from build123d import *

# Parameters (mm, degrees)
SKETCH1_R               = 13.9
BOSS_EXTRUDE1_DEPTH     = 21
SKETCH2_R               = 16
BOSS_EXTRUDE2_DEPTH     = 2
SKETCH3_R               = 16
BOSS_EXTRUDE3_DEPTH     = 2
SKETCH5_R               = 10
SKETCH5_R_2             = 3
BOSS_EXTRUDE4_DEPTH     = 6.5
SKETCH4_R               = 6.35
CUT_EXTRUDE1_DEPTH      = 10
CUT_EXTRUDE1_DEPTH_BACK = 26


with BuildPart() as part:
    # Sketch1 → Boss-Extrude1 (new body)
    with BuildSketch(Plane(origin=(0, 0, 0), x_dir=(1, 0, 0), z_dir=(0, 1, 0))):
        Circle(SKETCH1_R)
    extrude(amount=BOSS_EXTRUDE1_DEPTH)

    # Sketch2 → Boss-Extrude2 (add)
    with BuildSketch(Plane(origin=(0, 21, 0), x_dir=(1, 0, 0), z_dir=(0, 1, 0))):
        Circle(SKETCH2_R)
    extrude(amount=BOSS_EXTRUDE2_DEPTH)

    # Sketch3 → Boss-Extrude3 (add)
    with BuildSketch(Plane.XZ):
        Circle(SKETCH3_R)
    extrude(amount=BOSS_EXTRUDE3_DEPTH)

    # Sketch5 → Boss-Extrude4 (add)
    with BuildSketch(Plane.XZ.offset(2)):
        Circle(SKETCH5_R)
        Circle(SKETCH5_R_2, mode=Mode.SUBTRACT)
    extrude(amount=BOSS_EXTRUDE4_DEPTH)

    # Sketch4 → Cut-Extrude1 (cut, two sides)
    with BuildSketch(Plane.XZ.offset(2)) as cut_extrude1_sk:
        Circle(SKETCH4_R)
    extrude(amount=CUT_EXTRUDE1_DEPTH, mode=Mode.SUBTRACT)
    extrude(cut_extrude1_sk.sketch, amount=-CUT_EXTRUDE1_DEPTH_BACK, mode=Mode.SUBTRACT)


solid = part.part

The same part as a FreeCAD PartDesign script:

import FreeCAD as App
import Part
import Sketcher
from FreeCAD import Vector

doc = App.newDocument("Part")
body = doc.addObject("PartDesign::Body", "Body")

sketch1 = body.newObject("Sketcher::SketchObject", "Sketch")
sketch1.AttachmentSupport = (doc.getObject("XZ_Plane"), [""])
sketch1.MapMode = "FlatFace"
sketch1.addGeometry(Part.Circle(Vector(0, 0, 0), Vector(0, 0, 1), 13.9), False)
sketch1.addConstraint([
    Sketcher.Constraint("Coincident", 0, 3, -1, 1),
    Sketcher.Constraint("Diameter", 0, 27.8),
])
pad1 = body.newObject("PartDesign::Pad", "Pad")
pad1.Profile = sketch1
pad1.Length = 21
pad1.Reversed = True

sketch2 = body.newObject("Sketcher::SketchObject", "Sketch001")
sketch2.AttachmentSupport = (doc.getObject("XZ_Plane"), [""])
sketch2.MapMode = "FlatFace"
sketch2.AttachmentOffset = App.Placement(Vector(0, 0, -21), App.Rotation())
sketch2.addGeometry(Part.Circle(Vector(0, 0, 0), Vector(0, 0, 1), 16), False)
sketch2.addConstraint([
    Sketcher.Constraint("Coincident", 0, 3, -1, 1),
    Sketcher.Constraint("Diameter", 0, 32.0),
])
pad2 = body.newObject("PartDesign::Pad", "Pad001")
pad2.Profile = sketch2
pad2.Length = 2
pad2.Reversed = True

sketch3 = body.newObject("Sketcher::SketchObject", "Sketch002")
sketch3.AttachmentSupport = (doc.getObject("XZ_Plane"), [""])
sketch3.MapMode = "FlatFace"
sketch3.addGeometry(Part.Circle(Vector(0, 0, 0), Vector(0, 0, 1), 16), False)
sketch3.addConstraint([
    Sketcher.Constraint("Coincident", 0, 3, -1, 1),
    Sketcher.Constraint("Diameter", 0, 32.0),
])
pad3 = body.newObject("PartDesign::Pad", "Pad002")
pad3.Profile = sketch3
pad3.Length = 2

sketch4 = body.newObject("Sketcher::SketchObject", "Sketch003")
sketch4.AttachmentSupport = (doc.getObject("XZ_Plane"), [""])
sketch4.MapMode = "FlatFace"
sketch4.AttachmentOffset = App.Placement(Vector(0, 0, 2), App.Rotation())
sketch4.addGeometry([
    Part.Circle(Vector(0, 0, 0), Vector(0, 0, 1), 10),
    Part.Circle(Vector(0, 0, 0), Vector(0, 0, 1), 3),
], False)
sketch4.addConstraint([
    Sketcher.Constraint("Coincident", 0, 3, -1, 1),
    Sketcher.Constraint("Coincident", 1, 3, -1, 1),
    Sketcher.Constraint("Diameter", 0, 20.0),
    Sketcher.Constraint("Diameter", 1, 6.0),
])
pad4 = body.newObject("PartDesign::Pad", "Pad003")
pad4.Profile = sketch4
pad4.Length = 6.5

sketch5 = body.newObject("Sketcher::SketchObject", "Sketch004")
sketch5.AttachmentSupport = (doc.getObject("XZ_Plane"), [""])
sketch5.MapMode = "FlatFace"
sketch5.AttachmentOffset = App.Placement(Vector(0, 0, 2), App.Rotation())
sketch5.addGeometry(Part.Circle(Vector(0, 0, 0), Vector(0, 0, 1), 6.35), False)
sketch5.addConstraint([
    Sketcher.Constraint("Coincident", 0, 3, -1, 1),
    Sketcher.Constraint("Diameter", 0, 12.7),
])
pocket1 = body.newObject("PartDesign::Pocket", "Pocket")
pocket1.Profile = sketch5
pocket1.Type = "ThroughAll"
pocket1.Midplane = True

doc.recompute()
